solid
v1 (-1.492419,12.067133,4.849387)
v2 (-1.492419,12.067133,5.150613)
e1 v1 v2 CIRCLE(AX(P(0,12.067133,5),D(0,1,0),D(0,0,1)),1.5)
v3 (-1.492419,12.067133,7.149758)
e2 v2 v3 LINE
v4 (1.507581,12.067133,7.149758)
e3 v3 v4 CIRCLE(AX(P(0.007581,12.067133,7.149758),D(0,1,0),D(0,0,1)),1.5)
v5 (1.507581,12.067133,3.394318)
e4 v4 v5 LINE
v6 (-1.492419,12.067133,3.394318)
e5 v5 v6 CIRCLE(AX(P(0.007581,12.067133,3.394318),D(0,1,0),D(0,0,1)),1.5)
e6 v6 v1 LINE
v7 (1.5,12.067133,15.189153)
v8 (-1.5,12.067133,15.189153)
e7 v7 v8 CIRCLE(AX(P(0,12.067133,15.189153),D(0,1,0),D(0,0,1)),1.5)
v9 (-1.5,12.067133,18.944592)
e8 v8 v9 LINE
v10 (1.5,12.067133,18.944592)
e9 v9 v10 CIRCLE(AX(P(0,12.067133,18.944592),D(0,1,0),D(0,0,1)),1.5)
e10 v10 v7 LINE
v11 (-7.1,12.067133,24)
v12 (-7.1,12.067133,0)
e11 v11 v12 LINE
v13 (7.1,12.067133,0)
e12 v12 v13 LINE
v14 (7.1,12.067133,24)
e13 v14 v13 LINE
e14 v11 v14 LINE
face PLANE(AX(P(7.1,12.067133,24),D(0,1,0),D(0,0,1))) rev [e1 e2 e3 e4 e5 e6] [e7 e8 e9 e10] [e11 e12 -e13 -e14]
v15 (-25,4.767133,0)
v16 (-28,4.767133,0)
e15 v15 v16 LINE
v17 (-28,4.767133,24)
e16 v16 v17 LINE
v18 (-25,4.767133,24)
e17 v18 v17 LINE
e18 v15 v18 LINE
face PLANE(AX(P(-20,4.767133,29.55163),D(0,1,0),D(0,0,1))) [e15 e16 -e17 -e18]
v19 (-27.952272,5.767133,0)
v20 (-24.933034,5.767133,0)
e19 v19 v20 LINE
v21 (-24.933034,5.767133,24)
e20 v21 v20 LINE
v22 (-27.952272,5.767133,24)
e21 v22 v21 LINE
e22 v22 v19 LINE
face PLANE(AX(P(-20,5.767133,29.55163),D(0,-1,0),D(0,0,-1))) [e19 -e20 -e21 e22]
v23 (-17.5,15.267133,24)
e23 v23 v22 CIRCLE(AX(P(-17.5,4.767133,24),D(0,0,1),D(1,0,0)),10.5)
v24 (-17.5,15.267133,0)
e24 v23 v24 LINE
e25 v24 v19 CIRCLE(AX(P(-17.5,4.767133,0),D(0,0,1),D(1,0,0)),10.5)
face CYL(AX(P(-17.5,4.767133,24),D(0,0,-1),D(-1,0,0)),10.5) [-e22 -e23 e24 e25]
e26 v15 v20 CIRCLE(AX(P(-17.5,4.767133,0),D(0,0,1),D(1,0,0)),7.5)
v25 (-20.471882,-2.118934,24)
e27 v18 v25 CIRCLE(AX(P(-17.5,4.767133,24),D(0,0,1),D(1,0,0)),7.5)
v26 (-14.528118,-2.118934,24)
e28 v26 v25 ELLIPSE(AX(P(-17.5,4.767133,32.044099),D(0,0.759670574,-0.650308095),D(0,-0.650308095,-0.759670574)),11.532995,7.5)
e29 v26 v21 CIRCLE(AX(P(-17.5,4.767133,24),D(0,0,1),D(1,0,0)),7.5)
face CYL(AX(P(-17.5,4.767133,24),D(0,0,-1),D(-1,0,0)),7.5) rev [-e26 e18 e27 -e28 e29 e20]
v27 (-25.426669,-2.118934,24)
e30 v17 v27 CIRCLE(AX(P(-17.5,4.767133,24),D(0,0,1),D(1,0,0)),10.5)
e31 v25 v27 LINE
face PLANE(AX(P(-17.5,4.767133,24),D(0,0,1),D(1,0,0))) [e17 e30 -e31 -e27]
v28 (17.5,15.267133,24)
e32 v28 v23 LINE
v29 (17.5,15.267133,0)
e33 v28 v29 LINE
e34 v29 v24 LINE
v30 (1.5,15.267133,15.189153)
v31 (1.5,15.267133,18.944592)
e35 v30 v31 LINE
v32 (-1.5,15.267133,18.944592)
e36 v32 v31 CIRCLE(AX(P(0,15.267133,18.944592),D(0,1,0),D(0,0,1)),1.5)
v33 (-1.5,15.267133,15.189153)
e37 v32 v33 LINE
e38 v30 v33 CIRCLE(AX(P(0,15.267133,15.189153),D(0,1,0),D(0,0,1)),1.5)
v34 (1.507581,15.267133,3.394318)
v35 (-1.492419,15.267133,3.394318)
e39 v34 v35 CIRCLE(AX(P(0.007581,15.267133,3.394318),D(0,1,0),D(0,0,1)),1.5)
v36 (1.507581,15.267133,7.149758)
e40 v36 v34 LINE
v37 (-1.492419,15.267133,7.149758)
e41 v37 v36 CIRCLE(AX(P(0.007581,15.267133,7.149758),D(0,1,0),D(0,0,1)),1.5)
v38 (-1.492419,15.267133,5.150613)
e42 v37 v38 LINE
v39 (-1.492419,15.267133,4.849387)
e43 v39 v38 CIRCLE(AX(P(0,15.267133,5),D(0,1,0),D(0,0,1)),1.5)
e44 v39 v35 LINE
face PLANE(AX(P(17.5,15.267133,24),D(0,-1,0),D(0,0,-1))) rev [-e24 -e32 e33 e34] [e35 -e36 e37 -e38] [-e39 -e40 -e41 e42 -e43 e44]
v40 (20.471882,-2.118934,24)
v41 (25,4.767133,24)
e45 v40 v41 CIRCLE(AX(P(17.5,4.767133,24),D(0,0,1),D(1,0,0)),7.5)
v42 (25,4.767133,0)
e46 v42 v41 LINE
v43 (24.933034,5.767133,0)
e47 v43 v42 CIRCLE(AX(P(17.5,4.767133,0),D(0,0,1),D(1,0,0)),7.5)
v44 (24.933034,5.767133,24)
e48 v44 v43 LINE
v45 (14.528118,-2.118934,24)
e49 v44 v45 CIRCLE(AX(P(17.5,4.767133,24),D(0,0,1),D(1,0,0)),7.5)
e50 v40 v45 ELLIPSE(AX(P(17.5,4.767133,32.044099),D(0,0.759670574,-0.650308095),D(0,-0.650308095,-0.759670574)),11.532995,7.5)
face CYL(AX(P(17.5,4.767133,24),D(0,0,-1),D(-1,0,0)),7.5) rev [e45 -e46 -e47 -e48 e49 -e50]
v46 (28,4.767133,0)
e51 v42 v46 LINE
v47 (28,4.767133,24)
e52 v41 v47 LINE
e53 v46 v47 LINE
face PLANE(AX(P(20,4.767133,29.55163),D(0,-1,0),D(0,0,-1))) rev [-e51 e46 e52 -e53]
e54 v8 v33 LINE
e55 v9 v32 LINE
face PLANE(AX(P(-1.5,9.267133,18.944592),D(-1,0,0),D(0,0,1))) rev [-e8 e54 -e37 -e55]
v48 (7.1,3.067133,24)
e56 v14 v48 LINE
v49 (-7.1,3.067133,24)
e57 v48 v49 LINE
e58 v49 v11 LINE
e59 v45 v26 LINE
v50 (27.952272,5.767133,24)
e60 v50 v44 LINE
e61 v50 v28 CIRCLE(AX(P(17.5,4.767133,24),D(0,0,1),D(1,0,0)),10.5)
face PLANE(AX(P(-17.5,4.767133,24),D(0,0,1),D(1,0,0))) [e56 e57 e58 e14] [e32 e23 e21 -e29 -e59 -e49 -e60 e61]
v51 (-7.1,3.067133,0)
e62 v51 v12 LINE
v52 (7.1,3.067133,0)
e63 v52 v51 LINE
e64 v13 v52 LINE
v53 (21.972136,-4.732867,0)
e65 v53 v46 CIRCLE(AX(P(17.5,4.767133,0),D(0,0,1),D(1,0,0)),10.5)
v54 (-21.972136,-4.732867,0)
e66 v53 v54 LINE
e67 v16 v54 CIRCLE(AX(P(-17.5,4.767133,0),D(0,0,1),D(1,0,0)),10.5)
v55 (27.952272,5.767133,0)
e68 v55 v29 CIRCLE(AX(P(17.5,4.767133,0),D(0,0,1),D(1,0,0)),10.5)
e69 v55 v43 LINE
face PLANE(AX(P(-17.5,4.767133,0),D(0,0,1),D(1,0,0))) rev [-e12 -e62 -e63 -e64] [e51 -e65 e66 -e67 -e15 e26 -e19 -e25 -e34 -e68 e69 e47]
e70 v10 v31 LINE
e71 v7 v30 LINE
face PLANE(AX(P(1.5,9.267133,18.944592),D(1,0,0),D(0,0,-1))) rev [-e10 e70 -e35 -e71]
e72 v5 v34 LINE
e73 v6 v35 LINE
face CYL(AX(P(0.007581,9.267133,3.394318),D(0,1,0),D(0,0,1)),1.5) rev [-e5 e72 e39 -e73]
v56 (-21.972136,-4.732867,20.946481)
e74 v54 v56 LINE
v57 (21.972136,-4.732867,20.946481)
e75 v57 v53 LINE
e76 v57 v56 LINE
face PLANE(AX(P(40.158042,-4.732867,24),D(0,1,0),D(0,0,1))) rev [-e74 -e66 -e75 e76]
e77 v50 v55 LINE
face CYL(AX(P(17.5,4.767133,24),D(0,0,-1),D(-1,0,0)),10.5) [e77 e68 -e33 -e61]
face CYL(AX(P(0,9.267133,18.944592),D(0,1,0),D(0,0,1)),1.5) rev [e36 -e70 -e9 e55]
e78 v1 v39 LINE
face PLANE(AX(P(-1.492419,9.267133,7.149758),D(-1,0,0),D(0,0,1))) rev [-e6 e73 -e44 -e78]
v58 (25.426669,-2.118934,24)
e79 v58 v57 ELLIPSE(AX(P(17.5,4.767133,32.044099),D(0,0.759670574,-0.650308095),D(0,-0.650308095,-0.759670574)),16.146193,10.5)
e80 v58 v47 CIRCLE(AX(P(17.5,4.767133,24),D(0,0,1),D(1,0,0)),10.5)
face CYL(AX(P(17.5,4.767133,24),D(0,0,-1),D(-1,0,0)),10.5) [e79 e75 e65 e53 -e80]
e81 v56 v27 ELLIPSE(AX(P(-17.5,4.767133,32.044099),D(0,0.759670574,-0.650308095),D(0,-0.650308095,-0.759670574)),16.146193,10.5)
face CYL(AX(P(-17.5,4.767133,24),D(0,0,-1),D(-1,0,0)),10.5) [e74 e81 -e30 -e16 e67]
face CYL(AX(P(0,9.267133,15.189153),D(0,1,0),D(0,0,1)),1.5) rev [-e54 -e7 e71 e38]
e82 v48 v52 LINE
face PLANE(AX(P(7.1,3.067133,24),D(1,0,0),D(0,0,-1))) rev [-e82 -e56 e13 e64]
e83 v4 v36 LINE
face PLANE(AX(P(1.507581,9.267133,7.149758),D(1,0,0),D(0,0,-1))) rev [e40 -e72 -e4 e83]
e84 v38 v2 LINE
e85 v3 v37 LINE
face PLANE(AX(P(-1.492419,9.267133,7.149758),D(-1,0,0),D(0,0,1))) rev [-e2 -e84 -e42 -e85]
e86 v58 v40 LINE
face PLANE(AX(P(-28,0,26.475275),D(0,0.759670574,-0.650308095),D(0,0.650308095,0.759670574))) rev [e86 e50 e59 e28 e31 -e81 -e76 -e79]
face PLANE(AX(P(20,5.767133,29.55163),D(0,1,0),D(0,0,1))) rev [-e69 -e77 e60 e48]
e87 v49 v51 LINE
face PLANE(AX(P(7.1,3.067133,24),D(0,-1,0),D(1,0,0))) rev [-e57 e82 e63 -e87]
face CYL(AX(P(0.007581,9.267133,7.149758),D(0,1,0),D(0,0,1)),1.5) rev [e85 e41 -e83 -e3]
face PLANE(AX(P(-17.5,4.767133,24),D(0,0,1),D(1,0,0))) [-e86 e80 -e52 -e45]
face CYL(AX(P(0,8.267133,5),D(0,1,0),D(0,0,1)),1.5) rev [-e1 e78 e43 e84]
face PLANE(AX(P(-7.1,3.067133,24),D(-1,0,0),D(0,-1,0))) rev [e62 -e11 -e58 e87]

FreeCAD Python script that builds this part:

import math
import FreeCAD as App
import Part
import Sketcher

V = App.Vector
Q = App.Units.Quantity

doc = App.newDocument("Part")
body = doc.addObject("PartDesign::Body", "Body")

# Sketch on XY plane
sketch1 = body.newObject("Sketcher::SketchObject", "Sketch")
sketch1.AttachmentSupport = (doc.getObject("XY_Plane"), [""])
sketch1.MapMode = "FlatFace"
sketch1.addGeometry(Part.LineSegment(V(-18, -6, 0), V(18, -6, 0)), False)
sketch1.addGeometry(Part.ArcOfCircle(Part.Circle(V(18, 5, 0), V(0, 0, 1), 10), math.radians(-90), math.radians(90)), False)
sketch1.addGeometry(Part.LineSegment(V(18, 15, 0), V(-18, 15, 0)), False)
sketch1.addGeometry(Part.ArcOfCircle(Part.Circle(V(-18, 5, 0), V(0, 0, 1), 10), math.radians(90), math.radians(270)), False)
sketch1.addGeometry(Part.Circle(V(-18, 5, 0), V(0, 0, 1), 8), False)
sketch1.addGeometry(Part.Circle(V(18, 5, 0), V(0, 0, 1), 8), False)
sketch1.addConstraint(Sketcher.Constraint("Tangent", 0, 2, 1, 1))
sketch1.addConstraint(Sketcher.Constraint("Tangent", 1, 2, 2, 1))
sketch1.addConstraint(Sketcher.Constraint("Tangent", 2, 2, 3, 1))
sketch1.addConstraint(Sketcher.Constraint("Tangent", 3, 2, 0, 1))
sketch1.addConstraint(Sketcher.Constraint("Horizontal", 0))
sketch1.addConstraint(Sketcher.Constraint("Horizontal", 2))
sketch1.addConstraint(Sketcher.Constraint("Coincident", 4, 3, 3, 3))
sketch1.addConstraint(Sketcher.Constraint("Coincident", 5, 3, 1, 3))
sketch1.addConstraint(Sketcher.Constraint("Equal", 4, 5))
sketch1.addConstraint(Sketcher.Constraint("Diameter", 4, Q("15 mm")))
sketch1.addConstraint(Sketcher.Constraint("Radius", 1, Q("10.5 mm")))
sketch1.addConstraint(Sketcher.Constraint("DistanceX", 0, 1, 0, 2, Q("35 mm")))
sketch1.addConstraint(Sketcher.Constraint("DistanceX", -1, 1, 1, 3, Q("17.5 mm")))
sketch1.addConstraint(Sketcher.Constraint("DistanceY", -1, 1, 1, 3, Q("4.767133 mm")))
pad1 = body.newObject("PartDesign::Pad", "Pad")
pad1.Profile = sketch1
pad1.Length = 24

# Sketch on XY plane
sketch2 = body.newObject("Sketcher::SketchObject", "Sketch001")
sketch2.AttachmentSupport = (doc.getObject("XY_Plane"), [""])
sketch2.MapMode = "FlatFace"
sketch2.addGeometry(Part.LineSegment(V(40.2, -4.7, 0), V(40.2, -5.7, 0)), False)
sketch2.addGeometry(Part.LineSegment(V(40.2, -5.7, 0), V(-28.5, -5.7, 0)), False)
sketch2.addGeometry(Part.LineSegment(V(-28.5, -5.7, 0), V(-28.5, -4.7, 0)), False)
sketch2.addGeometry(Part.LineSegment(V(-28.5, -4.7, 0), V(40.2, -4.7, 0)), False)
sketch2.addConstraint(Sketcher.Constraint("Coincident", 0, 2, 1, 1))
sketch2.addConstraint(Sketcher.Constraint("Coincident", 1, 2, 2, 1))
sketch2.addConstraint(Sketcher.Constraint("Coincident", 2, 2, 3, 1))
sketch2.addConstraint(Sketcher.Constraint("Coincident", 3, 2, 0, 1))
sketch2.addConstraint(Sketcher.Constraint("Vertical", 0))
sketch2.addConstraint(Sketcher.Constraint("Horizontal", 1))
sketch2.addConstraint(Sketcher.Constraint("Vertical", 2))
sketch2.addConstraint(Sketcher.Constraint("Horizontal", 3))
sketch2.addConstraint(Sketcher.Constraint("DistanceY", 0, 2, 0, 1, Q("1 mm")))
sketch2.addConstraint(Sketcher.Constraint("DistanceX", 1, 2, 1, 1, Q("68.617197 mm")))
sketch2.addConstraint(Sketcher.Constraint("DistanceX", -1, 1, 0, 2, Q("40.158042 mm")))
sketch2.addConstraint(Sketcher.Constraint("DistanceY", 0, 2, -1, 1, Q("5.732867 mm")))
pocket1 = body.newObject("PartDesign::Pocket", "Pocket")
pocket1.Profile = sketch2
pocket1.Type = "ThroughAll"
pocket1.Midplane = True

# Sketch on XY plane
sketch3 = body.newObject("Sketcher::SketchObject", "Sketch002")
sketch3.AttachmentSupport = (doc.getObject("XY_Plane"), [""])
sketch3.MapMode = "FlatFace"
sketch3.addGeometry(Part.LineSegment(V(7, 12, 0), V(7, 3, 0)), False)
sketch3.addGeometry(Part.LineSegment(V(7, 3, 0), V(-7, 3, 0)), False)
sketch3.addGeometry(Part.LineSegment(V(-7, 3, 0), V(-7, 12, 0)), False)
sketch3.addGeometry(Part.LineSegment(V(-7, 12, 0), V(7, 12, 0)), False)
sketch3.addConstraint(Sketcher.Constraint("Coincident", 0, 2, 1, 1))
sketch3.addConstraint(Sketcher.Constraint("Coincident", 1, 2, 2, 1))
sketch3.addConstraint(Sketcher.Constraint("Coincident", 2, 2, 3, 1))
sketch3.addConstraint(Sketcher.Constraint("Coincident", 3, 2, 0, 1))
sketch3.addConstraint(Sketcher.Constraint("Vertical", 0))
sketch3.addConstraint(Sketcher.Constraint("Horizontal", 1))
sketch3.addConstraint(Sketcher.Constraint("Vertical", 2))
sketch3.addConstraint(Sketcher.Constraint("Horizontal", 3))
sketch3.addConstraint(Sketcher.Constraint("DistanceY", 0, 2, 0, 1, Q("9 mm")))
sketch3.addConstraint(Sketcher.Constraint("DistanceX", 1, 2, 1, 1, Q("14.2 mm")))
sketch3.addConstraint(Sketcher.Constraint("DistanceX", -1, 1, 0, 2, Q("7.1 mm")))
sketch3.addConstraint(Sketcher.Constraint("DistanceY", -1, 1, 0, 2, Q("3.067133 mm")))
pocket2 = body.newObject("PartDesign::Pocket", "Pocket001")
pocket2.Profile = sketch3
pocket2.Type = "ThroughAll"
pocket2.Reversed = True

# Sketch on XZ plane
sketch4 = body.newObject("Sketcher::SketchObject", "Sketch003")
sketch4.AttachmentSupport = (doc.getObject("XZ_Plane"), [""])
sketch4.MapMode = "FlatFace"
sketch4.AttachmentOffset = App.Placement(V(0, 0, -15.267133), App.Rotation())
sketch4.addGeometry(Part.Circle(V(0, 5, 0), V(0, 0, 1), 1.5), False)
sketch4.addGeometry(Part.Circle(V(0, 17, 0), V(0, 0, 1), 1.5), False)
sketch4.addConstraint(Sketcher.Constraint("Equal", 0, 1))
sketch4.addConstraint(Sketcher.Constraint("PointOnObject", 0, 3, -2))
sketch4.addConstraint(Sketcher.Constraint("PointOnObject", 1, 3, -2))
sketch4.addConstraint(Sketcher.Constraint("Diameter", 0, Q("3 mm")))
sketch4.addConstraint(Sketcher.Constraint("DistanceY", -1, 1, 0, 3, Q("5 mm")))
sketch4.addConstraint(Sketcher.Constraint("DistanceY", -1, 1, 1, 3, Q("17 mm")))
pocket3 = body.newObject("PartDesign::Pocket", "Pocket002")
pocket3.Profile = sketch4
pocket3.Length = 7
pocket3.Reversed = True

# Sketch on YZ plane
sketch5 = body.newObject("Sketcher::SketchObject", "Sketch004")
sketch5.AttachmentSupport = (doc.getObject("YZ_Plane"), [""])
sketch5.MapMode = "FlatFace"
sketch5.addGeometry(Part.LineSegment(V(-6, 19, 0), V(0, 26, 0)), False)
sketch5.addGeometry(Part.LineSegment(V(0, 26, 0), V(-6, 28, 0)), False)
sketch5.addGeometry(Part.LineSegment(V(-6, 28, 0), V(-6, 19, 0)), False)
sketch5.addConstraint(Sketcher.Constraint("Coincident", 0, 2, 1, 1))
sketch5.addConstraint(Sketcher.Constraint("Coincident", 1, 2, 2, 1))
sketch5.addConstraint(Sketcher.Constraint("Coincident", 2, 2, 0, 1))
sketch5.addConstraint(Sketcher.Constraint("PointOnObject", 0, 2, -2))
sketch5.addConstraint(Sketcher.Constraint("Distance", 0, Q("9.928579 mm")))
sketch5.addConstraint(Sketcher.Constraint("DistanceY", -1, 1, 1, 2, Q("28.387152 mm")))
sketch5.addConstraint(Sketcher.Constraint("DistanceX", 2, 2, 1, 2, Q("0.535079 mm")))
sketch5.addConstraint(Sketcher.Constraint("DistanceY", 2, 2, 0, 2, Q("7.542449 mm")))
sketch5.addConstraint(Sketcher.Constraint("Distance", 1, Q("6.222547 mm")))
pocket4 = body.newObject("PartDesign::Pocket", "Pocket003")
pocket4.Profile = sketch5
pocket4.Type = "ThroughAll"
pocket4.Midplane = True

# Sketch on YZ plane
sketch6 = body.newObject("Sketcher::SketchObject", "Sketch005")
sketch6.AttachmentSupport = (doc.getObject("YZ_Plane"), [""])
sketch6.MapMode = "FlatFace"
sketch6.AttachmentOffset = App.Placement(V(0, 0, 30), App.Rotation())
sketch6.addGeometry(Part.LineSegment(V(5.8, 29.6, 0), V(4.8, 29.6, 0)), False)
sketch6.addGeometry(Part.LineSegment(V(4.8, 29.6, 0), V(4.8, -4, 0)), False)
sketch6.addGeometry(Part.LineSegment(V(4.8, -4, 0), V(5.8, -4, 0)), False)
sketch6.addGeometry(Part.LineSegment(V(5.8, -4, 0), V(5.8, 29.6, 0)), False)
sketch6.addConstraint(Sketcher.Constraint("Coincident", 0, 2, 1, 1))
sketch6.addConstraint(Sketcher.Constraint("Coincident", 1, 2, 2, 1))
sketch6.addConstraint(Sketcher.Constraint("Coincident", 2, 2, 3, 1))
sketch6.addConstraint(Sketcher.Constraint("Coincident", 3, 2, 0, 1))
sketch6.addConstraint(Sketcher.Constraint("Horizontal", 0))
sketch6.addConstraint(Sketcher.Constraint("Vertical", 1))
sketch6.addConstraint(Sketcher.Constraint("Horizontal", 2))
sketch6.addConstraint(Sketcher.Constraint("Vertical", 3))
sketch6.addConstraint(Sketcher.Constraint("DistanceX", 0, 2, 0, 1, Q("1 mm")))
sketch6.addConstraint(Sketcher.Constraint("DistanceY", 1, 2, 1, 1, Q("33.56951 mm")))
sketch6.addConstraint(Sketcher.Constraint("DistanceY", -1, 1, 0, 2, Q("29.55163 mm")))
sketch6.addConstraint(Sketcher.Constraint("DistanceX", -1, 1, 0, 2, Q("4.767133 mm")))
pocket5 = body.newObject("PartDesign::Pocket", "Pocket004")
pocket5.Profile = sketch6
pocket5.Length = 10
doc.recompute()

mirrored = body.newObject("PartDesign::Mirrored", "Mirrored")
mirrored.Originals = [pocket5]
mirrored.MirrorPlane = (doc.getObject("YZ_Plane"), [""])
body.Tip = mirrored

# Sketch on XZ plane
sketch7 = body.newObject("Sketcher::SketchObject", "Sketch006")
sketch7.AttachmentSupport = (doc.getObject("XZ_Plane"), [""])
sketch7.MapMode = "FlatFace"
sketch7.AttachmentOffset = App.Placement(V(0, 0, -15.267133), App.Rotation())
sketch7.addGeometry(Part.LineSegment(V(-1.5, 15.2, 0), V(-1.5, 18.9, 0)), False)
sketch7.addGeometry(Part.ArcOfCircle(Part.Circle(V(0, 18.9, 0), V(0, 0, 1), 1.5), math.radians(0), math.radians(180)), False)
sketch7.addGeometry(Part.LineSegment(V(1.5, 18.9, 0), V(1.5, 15.2, 0)), False)
sketch7.addGeometry(Part.ArcOfCircle(Part.Circle(V(0, 15.2, 0), V(0, 0, 1), 1.5), math.radians(180), math.radians(360)), False)
sketch7.addGeometry(Part.LineSegment(V(-1.5, 3.4, 0), V(-1.5, 7.1, 0)), False)
sketch7.addGeometry(Part.ArcOfCircle(Part.Circle(V(0, 7.1, 0), V(0, 0, 1), 1.5), math.radians(0), math.radians(180)), False)
sketch7.addGeometry(Part.LineSegment(V(1.5, 7.1, 0), V(1.5, 3.4, 0)), False)
sketch7.addGeometry(Part.ArcOfCircle(Part.Circle(V(0, 3.4, 0), V(0, 0, 1), 1.5), math.radians(180), math.radians(360)), False)
sketch7.addConstraint(Sketcher.Constraint("Tangent", 0, 2, 1, 2))
sketch7.addConstraint(Sketcher.Constraint("Tangent", 1, 1, 2, 1))
sketch7.addConstraint(Sketcher.Constraint("Tangent", 2, 2, 3, 2))
sketch7.addConstraint(Sketcher.Constraint("Tangent", 3, 1, 0, 1))
sketch7.addConstraint(Sketcher.Constraint("Tangent", 4, 2, 5, 2))
sketch7.addConstraint(Sketcher.Constraint("Tangent", 5, 1, 6, 1))
sketch7.addConstraint(Sketcher.Constraint("Tangent", 6, 2, 7, 2))
sketch7.addConstraint(Sketcher.Constraint("Tangent", 7, 1, 4, 1))
sketch7.addConstraint(Sketcher.Constraint("Vertical", 0))
sketch7.addConstraint(Sketcher.Constraint("Vertical", 2))
sketch7.addConstraint(Sketcher.Constraint("Vertical", 4))
sketch7.addConstraint(Sketcher.Constraint("Vertical", 6))
sketch7.addConstraint(Sketcher.Constraint("Equal", 3, 5))
sketch7.addConstraint(Sketcher.Constraint("PointOnObject", 1, 3, -2))
sketch7.addConstraint(Sketcher.Constraint("Equal", 2, 4))
sketch7.addConstraint(Sketcher.Constraint("Radius", 1, Q("1.5 mm")))
sketch7.addConstraint(Sketcher.Constraint("DistanceY", 0, 1, 0, 2, Q("3.755439 mm")))
sketch7.addConstraint(Sketcher.Constraint("DistanceX", -1, 1, 5, 3, Q("0.007581 mm")))
sketch7.addConstraint(Sketcher.Constraint("DistanceY", -1, 1, 7, 3, Q("3.394318 mm")))
sketch7.addConstraint(Sketcher.Constraint("DistanceY", -1, 1, 1, 3, Q("18.944592 mm")))
pocket6 = body.newObject("PartDesign::Pocket", "Pocket005")
pocket6.Profile = sketch7
pocket6.Type = "TwoLengths"
pocket6.Length = 42.952354
pocket6.Length2 = 6

doc.recompute()
